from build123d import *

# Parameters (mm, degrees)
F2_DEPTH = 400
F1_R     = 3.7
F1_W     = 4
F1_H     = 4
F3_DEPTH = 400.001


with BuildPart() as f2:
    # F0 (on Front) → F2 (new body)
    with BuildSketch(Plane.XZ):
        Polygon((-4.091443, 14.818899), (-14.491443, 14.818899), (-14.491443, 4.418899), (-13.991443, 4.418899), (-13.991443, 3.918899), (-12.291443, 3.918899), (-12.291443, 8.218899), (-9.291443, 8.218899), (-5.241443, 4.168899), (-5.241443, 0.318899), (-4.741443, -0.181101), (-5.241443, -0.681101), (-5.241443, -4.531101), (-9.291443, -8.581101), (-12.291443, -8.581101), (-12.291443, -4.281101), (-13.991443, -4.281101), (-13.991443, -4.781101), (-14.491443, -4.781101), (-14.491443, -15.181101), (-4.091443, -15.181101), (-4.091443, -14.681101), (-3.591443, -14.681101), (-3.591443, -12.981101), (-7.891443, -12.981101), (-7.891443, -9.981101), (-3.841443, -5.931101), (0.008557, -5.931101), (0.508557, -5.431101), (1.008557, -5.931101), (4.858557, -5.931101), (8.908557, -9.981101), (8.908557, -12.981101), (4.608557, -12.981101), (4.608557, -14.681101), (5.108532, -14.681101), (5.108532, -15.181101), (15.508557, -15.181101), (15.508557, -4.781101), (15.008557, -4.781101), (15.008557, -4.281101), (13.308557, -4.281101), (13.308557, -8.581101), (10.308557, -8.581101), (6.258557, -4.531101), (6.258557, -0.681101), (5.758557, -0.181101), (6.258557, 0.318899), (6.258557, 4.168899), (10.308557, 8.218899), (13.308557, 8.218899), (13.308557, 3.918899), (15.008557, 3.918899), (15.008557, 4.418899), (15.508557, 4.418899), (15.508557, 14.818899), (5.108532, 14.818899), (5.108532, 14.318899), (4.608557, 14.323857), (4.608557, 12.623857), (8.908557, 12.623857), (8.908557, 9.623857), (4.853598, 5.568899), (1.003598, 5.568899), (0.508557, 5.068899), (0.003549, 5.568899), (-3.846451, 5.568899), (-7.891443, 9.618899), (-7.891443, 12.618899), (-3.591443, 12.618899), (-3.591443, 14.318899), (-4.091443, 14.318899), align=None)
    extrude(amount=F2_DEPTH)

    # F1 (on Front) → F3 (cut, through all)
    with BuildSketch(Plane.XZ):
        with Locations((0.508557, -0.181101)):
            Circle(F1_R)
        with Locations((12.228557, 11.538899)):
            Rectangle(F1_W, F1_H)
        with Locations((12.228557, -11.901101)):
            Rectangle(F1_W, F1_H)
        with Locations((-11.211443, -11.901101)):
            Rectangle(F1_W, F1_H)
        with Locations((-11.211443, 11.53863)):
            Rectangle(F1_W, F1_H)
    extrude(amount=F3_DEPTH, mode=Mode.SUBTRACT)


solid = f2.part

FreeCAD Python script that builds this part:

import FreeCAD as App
import Part
import Sketcher
from FreeCAD import Vector

doc = App.newDocument("Part")
params = doc.addObject("Spreadsheet::Sheet", "Params")
for row, (alias, value) in enumerate([
    ("sketch1_width", "3 mm"),
    ("sketch1_width2", "10.4 mm"),
    ("sketch1_width3", "0.5 mm"),
    ("sketch1_width4", "1.7 mm"),
    ("sketch1_width5", "4.3 mm"),
    ("pad1_length", "400 mm"),
    ("sketch2_diameter", "7.4 mm"),
    ("sketch2_width", "4 mm"),
], start=1):
    params.set(f"A{row}", alias)
    params.set(f"B{row}", "=" + value)
    params.setAlias(f"B{row}", alias)

body = doc.addObject("PartDesign::Body", "Body")

sketch1 = body.newObject("Sketcher::SketchObject", "Sketch")
sketch1.AttachmentSupport = (doc.getObject("XZ_Plane"), [""])
sketch1.MapMode = "FlatFace"
sketch1.addGeometry([
    Part.LineSegment(Vector(-4.09, 14.82, 0), Vector(-14.49, 14.82, 0)),
    Part.LineSegment(Vector(-14.49, 14.82, 0), Vector(-14.49, 4.42, 0)),
    Part.LineSegment(Vector(-14.49, 4.42, 0), Vector(-13.99, 4.42, 0)),
    Part.LineSegment(Vector(-13.99, 4.42, 0), Vector(-13.99, 3.92, 0)),
    Part.LineSegment(Vector(-13.99, 3.92, 0), Vector(-12.29, 3.92, 0)),
    Part.LineSegment(Vector(-12.29, 3.92, 0), Vector(-12.29, 8.22, 0)),
    Part.LineSegment(Vector(-12.29, 8.22, 0), Vector(-9.29, 8.22, 0)),
    Part.LineSegment(Vector(-9.29, 8.22, 0), Vector(-5.24, 4.17, 0)),
    Part.LineSegment(Vector(-5.24, 4.17, 0), Vector(-5.24, 0.32, 0)),
    Part.LineSegment(Vector(-5.24, 0.32, 0), Vector(-4.74, -0.18, 0)),
    Part.LineSegment(Vector(-4.74, -0.18, 0), Vector(-5.24, -0.68, 0)),
    Part.LineSegment(Vector(-5.24, -0.68, 0), Vector(-5.24, -4.53, 0)),
    Part.LineSegment(Vector(-5.24, -4.53, 0), Vector(-9.29, -8.58, 0)),
    Part.LineSegment(Vector(-9.29, -8.58, 0), Vector(-12.29, -8.58, 0)),
    Part.LineSegment(Vector(-12.29, -8.58, 0), Vector(-12.29, -4.28, 0)),
    Part.LineSegment(Vector(-12.29, -4.28, 0), Vector(-13.99, -4.28, 0)),
    Part.LineSegment(Vector(-13.99, -4.28, 0), Vector(-13.99, -4.78, 0)),
    Part.LineSegment(Vector(-13.99, -4.78, 0), Vector(-14.49, -4.78, 0)),
    Part.LineSegment(Vector(-14.49, -4.78, 0), Vector(-14.49, -15.18, 0)),
    Part.LineSegment(Vector(-14.49, -15.18, 0), Vector(-4.09, -15.18, 0)),
    Part.LineSegment(Vector(-4.09, -15.18, 0), Vector(-4.09, -14.68, 0)),
    Part.LineSegment(Vector(-4.09, -14.68, 0), Vector(-3.59, -14.68, 0)),
    Part.LineSegment(Vector(-3.59, -14.68, 0), Vector(-3.59, -12.98, 0)),
    Part.LineSegment(Vector(-3.59, -12.98, 0), Vector(-7.89, -12.98, 0)),
    Part.LineSegment(Vector(-7.89, -12.98, 0), Vector(-7.89, -9.98, 0)),
    Part.LineSegment(Vector(-7.89, -9.98, 0), Vector(-3.84, -5.93, 0)),
    Part.LineSegment(Vector(-3.84, -5.93, 0), Vector(0.01, -5.93, 0)),
    Part.LineSegment(Vector(0.01, -5.93, 0), Vector(0.51, -5.43, 0)),
    Part.LineSegment(Vector(0.51, -5.43, 0), Vector(1.01, -5.93, 0)),
    Part.LineSegment(Vector(1.01, -5.93, 0), Vector(4.86, -5.93, 0)),
    Part.LineSegment(Vector(4.86, -5.93, 0), Vector(8.91, -9.98, 0)),
    Part.LineSegment(Vector(8.91, -9.98, 0), Vector(8.91, -12.98, 0)),
    Part.LineSegment(Vector(8.91, -12.98, 0), Vector(4.61, -12.98, 0)),
    Part.LineSegment(Vector(4.61, -12.98, 0), Vector(4.61, -14.68, 0)),
    Part.LineSegment(Vector(4.61, -14.68, 0), Vector(5.11, -14.68, 0)),
    Part.LineSegment(Vector(5.11, -14.68, 0), Vector(5.11, -15.18, 0)),
    Part.LineSegment(Vector(5.11, -15.18, 0), Vector(15.51, -15.18, 0)),
    Part.LineSegment(Vector(15.51, -15.18, 0), Vector(15.51, -4.78, 0)),
    Part.LineSegment(Vector(15.51, -4.78, 0), Vector(15.01, -4.78, 0)),
    Part.LineSegment(Vector(15.01, -4.78, 0), Vector(15.01, -4.28, 0)),
    Part.LineSegment(Vector(15.01, -4.28, 0), Vector(13.31, -4.28, 0)),
    Part.LineSegment(Vector(13.31, -4.28, 0), Vector(13.31, -8.58, 0)),
    Part.LineSegment(Vector(13.31, -8.58, 0), Vector(10.31, -8.58, 0)),
    Part.LineSegment(Vector(10.31, -8.58, 0), Vector(6.26, -4.53, 0)),
    Part.LineSegment(Vector(6.26, -4.53, 0), Vector(6.26, -0.68, 0)),
    Part.LineSegment(Vector(6.26, -0.68, 0), Vector(5.76, -0.18, 0)),
    Part.LineSegment(Vector(5.76, -0.18, 0), Vector(6.26, 0.32, 0)),
    Part.LineSegment(Vector(6.26, 0.32, 0), Vector(6.26, 4.17, 0)),
    Part.LineSegment(Vector(6.26, 4.17, 0), Vector(10.31, 8.22, 0)),
    Part.LineSegment(Vector(10.31, 8.22, 0), Vector(13.31, 8.22, 0)),
    Part.LineSegment(Vector(13.31, 8.22, 0), Vector(13.31, 3.92, 0)),
    Part.LineSegment(Vector(13.31, 3.92, 0), Vector(15.01, 3.92, 0)),
    Part.LineSegment(Vector(15.01, 3.92, 0), Vector(15.01, 4.42, 0)),
    Part.LineSegment(Vector(15.01, 4.42, 0), Vector(15.51, 4.42, 0)),
    Part.LineSegment(Vector(15.51, 4.42, 0), Vector(15.51, 14.82, 0)),
    Part.LineSegment(Vector(15.51, 14.82, 0), Vector(5.11, 14.82, 0)),
    Part.LineSegment(Vector(5.11, 14.82, 0), Vector(5.11, 14.32, 0)),
    Part.LineSegment(Vector(5.11, 14.32, 0), Vector(4.61, 14.32, 0)),
    Part.LineSegment(Vector(4.61, 14.32, 0), Vector(4.61, 12.62, 0)),
    Part.LineSegment(Vector(4.61, 12.62, 0), Vector(8.91, 12.62, 0)),
    Part.LineSegment(Vector(8.91, 12.62, 0), Vector(8.91, 9.62, 0)),
    Part.LineSegment(Vector(8.91, 9.62, 0), Vector(4.85, 5.57, 0)),
    Part.LineSegment(Vector(4.85, 5.57, 0), Vector(1, 5.57, 0)),
    Part.LineSegment(Vector(1, 5.57, 0), Vector(0.51, 5.07, 0)),
    Part.LineSegment(Vector(0.51, 5.07, 0), Vector(0, 5.57, 0)),
    Part.LineSegment(Vector(0, 5.57, 0), Vector(-3.85, 5.57, 0)),
    Part.LineSegment(Vector(-3.85, 5.57, 0), Vector(-7.89, 9.62, 0)),
    Part.LineSegment(Vector(-7.89, 9.62, 0), Vector(-7.89, 12.62, 0)),
    Part.LineSegment(Vector(-7.89, 12.62, 0), Vector(-3.59, 12.62, 0)),
    Part.LineSegment(Vector(-3.59, 12.62, 0), Vector(-3.59, 14.32, 0)),
    Part.LineSegment(Vector(-3.59, 14.32, 0), Vector(-4.09, 14.32, 0)),
    Part.LineSegment(Vector(-4.09, 14.32, 0), Vector(-4.09, 14.82, 0)),
], False)
sketch1.addConstraint([
    Sketcher.Constraint("Coincident", 0, 2, 1, 1),
    Sketcher.Constraint("Coincident", 1, 2, 2, 1),
    Sketcher.Constraint("Coincident", 2, 2, 3, 1),
    Sketcher.Constraint("Coincident", 3, 2, 4, 1),
    Sketcher.Constraint("Coincident", 4, 2, 5, 1),
    Sketcher.Constraint("Coincident", 5, 2, 6, 1),
    Sketcher.Constraint("Coincident", 6, 2, 7, 1),
    Sketcher.Constraint("Coincident", 7, 2, 8, 1),
    Sketcher.Constraint("Coincident", 8, 2, 9, 1),
    Sketcher.Constraint("Coincident", 9, 2, 10, 1),
    Sketcher.Constraint("Coincident", 10, 2, 11, 1),
    Sketcher.Constraint("Coincident", 11, 2, 12, 1),
    Sketcher.Constraint("Coincident", 12, 2, 13, 1),
    Sketcher.Constraint("Coincident", 13, 2, 14, 1),
    Sketcher.Constraint("Coincident", 14, 2, 15, 1),
    Sketcher.Constraint("Coincident", 15, 2, 16, 1),
    Sketcher.Constraint("Coincident", 16, 2, 17, 1),
    Sketcher.Constraint("Coincident", 17, 2, 18, 1),
    Sketcher.Constraint("Coincident", 18, 2, 19, 1),
    Sketcher.Constraint("Coincident", 19, 2, 20, 1),
    Sketcher.Constraint("Coincident", 20, 2, 21, 1),
    Sketcher.Constraint("Coincident", 21, 2, 22, 1),
    Sketcher.Constraint("Coincident", 22, 2, 23, 1),
    Sketcher.Constraint("Coincident", 23, 2, 24, 1),
    Sketcher.Constraint("Coincident", 24, 2, 25, 1),
    Sketcher.Constraint("Coincident", 25, 2, 26, 1),
    Sketcher.Constraint("Coincident", 26, 2, 27, 1),
    Sketcher.Constraint("Coincident", 27, 2, 28, 1),
    Sketcher.Constraint("Coincident", 28, 2, 29, 1),
    Sketcher.Constraint("Coincident", 29, 2, 30, 1),
    Sketcher.Constraint("Coincident", 30, 2, 31, 1),
    Sketcher.Constraint("Coincident", 31, 2, 32, 1),
    Sketcher.Constraint("Coincident", 32, 2, 33, 1),
    Sketcher.Constraint("Coincident", 33, 2, 34, 1),
    Sketcher.Constraint("Coincident", 34, 2, 35, 1),
    Sketcher.Constraint("Coincident", 35, 2, 36, 1),
    Sketcher.Constraint("Coincident", 36, 2, 37, 1),
    Sketcher.Constraint("Coincident", 37, 2, 38, 1),
    Sketcher.Constraint("Coincident", 38, 2, 39, 1),
    Sketcher.Constraint("Coincident", 39, 2, 40, 1),
    Sketcher.Constraint("Coincident", 40, 2, 41, 1),
    Sketcher.Constraint("Coincident", 41, 2, 42, 1),
    Sketcher.Constraint("Coincident", 42, 2, 43, 1),
    Sketcher.Constraint("Coincident", 43, 2, 44, 1),
    Sketcher.Constraint("Coincident", 44, 2, 45, 1),
    Sketcher.Constraint("Coincident", 45, 2, 46, 1),
    Sketcher.Constraint("Coincident", 46, 2, 47, 1),
    Sketcher.Constraint("Coincident", 47, 2, 48, 1),
    Sketcher.Constraint("Coincident", 48, 2, 49, 1),
    Sketcher.Constraint("Coincident", 49, 2, 50, 1),
    Sketcher.Constraint("Coincident", 50, 2, 51, 1),
    Sketcher.Constraint("Coincident", 51, 2, 52, 1),
    Sketcher.Constraint("Coincident", 52, 2, 53, 1),
    Sketcher.Constraint("Coincident", 53, 2, 54, 1),
    Sketcher.Constraint("Coincident", 54, 2, 55, 1),
    Sketcher.Constraint("Coincident", 55, 2, 56, 1),
    Sketcher.Constraint("Coincident", 56, 2, 57, 1),
    Sketcher.Constraint("Coincident", 57, 2, 58, 1),
    Sketcher.Constraint("Coincident", 58, 2, 59, 1),
    Sketcher.Constraint("Coincident", 59, 2, 60, 1),
    Sketcher.Constraint("Coincident", 60, 2, 61, 1),
    Sketcher.Constraint("Coincident", 61, 2, 62, 1),
    Sketcher.Constraint("Coincident", 62, 2, 63, 1),
    Sketcher.Constraint("Coincident", 63, 2, 64, 1),
    Sketcher.Constraint("Coincident", 64, 2, 65, 1),
    Sketcher.Constraint("Coincident", 65, 2, 66, 1),
    Sketcher.Constraint("Coincident", 66, 2, 67, 1),
    Sketcher.Constraint("Coincident", 67, 2, 68, 1),
    Sketcher.Constraint("Coincident", 68, 2, 69, 1),
    Sketcher.Constraint("Coincident", 69, 2, 70, 1),
    Sketcher.Constraint("Coincident", 70, 2, 71, 1),
    Sketcher.Constraint("Coincident", 71, 2, 0, 1),
    Sketcher.Constraint("Horizontal", 0),
    Sketcher.Constraint("Vertical", 1),
    Sketcher.Constraint("Horizontal", 2),
    Sketcher.Constraint("Vertical", 3),
    Sketcher.Constraint("Horizontal", 4),
    Sketcher.Constraint("Vertical", 5),
    Sketcher.Constraint("Horizontal", 6),
    Sketcher.Constraint("Vertical", 8),
    Sketcher.Constraint("Vertical", 11),
    Sketcher.Constraint("Horizontal", 13),
    Sketcher.Constraint("Vertical", 14),
    Sketcher.Constraint("Horizontal", 15),
    Sketcher.Constraint("Vertical", 16),
    Sketcher.Constraint("Horizontal", 17),
    Sketcher.Constraint("Vertical", 18),
    Sketcher.Constraint("Horizontal", 19),
    Sketcher.Constraint("Vertical", 20),
    Sketcher.Constraint("Horizontal", 21),
    Sketcher.Constraint("Vertical", 22),
    Sketcher.Constraint("Horizontal", 23),
    Sketcher.Constraint("Vertical", 24),
    Sketcher.Constraint("Horizontal", 26),
    Sketcher.Constraint("Horizontal", 29),
    Sketcher.Constraint("Vertical", 31),
    Sketcher.Constraint("Horizontal", 32),
    Sketcher.Constraint("Vertical", 33),
    Sketcher.Constraint("Horizontal", 34),
    Sketcher.Constraint("Vertical", 35),
    Sketcher.Constraint("Horizontal", 36),
    Sketcher.Constraint("Vertical", 37),
    Sketcher.Constraint("Horizontal", 38),
    Sketcher.Constraint("Vertical", 39),
    Sketcher.Constraint("Horizontal", 40),
    Sketcher.Constraint("Vertical", 41),
    Sketcher.Constraint("Horizontal", 42),
    Sketcher.Constraint("Vertical", 44),
    Sketcher.Constraint("Vertical", 47),
    Sketcher.Constraint("Horizontal", 49),
    Sketcher.Constraint("Vertical", 50),
    Sketcher.Constraint("Horizontal", 51),
    Sketcher.Constraint("Vertical", 52),
    Sketcher.Constraint("Horizontal", 53),
    Sketcher.Constraint("Vertical", 54),
    Sketcher.Constraint("Horizontal", 55),
    Sketcher.Constraint("Vertical", 56),
    Sketcher.Constraint("Vertical", 58),
    Sketcher.Constraint("Horizontal", 59),
    Sketcher.Constraint("Vertical", 60),
    Sketcher.Constraint("Horizontal", 62),
    Sketcher.Constraint("Horizontal", 65),
    Sketcher.Constraint("Vertical", 67),
    Sketcher.Constraint("Horizontal", 68),
    Sketcher.Constraint("Vertical", 69),
    Sketcher.Constraint("Horizontal", 70),
    Sketcher.Constraint("Vertical", 71),
    Sketcher.Constraint("Parallel", 7, 9),
    Sketcher.Constraint("Perpendicular", 9, 10),
    Sketcher.Constraint("Parallel", 10, 12),
    Sketcher.Constraint("Parallel", 12, 25),
    Sketcher.Constraint("Parallel", 25, 27),
    Sketcher.Constraint("Perpendicular", 27, 28),
    Sketcher.Constraint("Parallel", 28, 30),
    Sketcher.Constraint("Parallel", 30, 43),
    Sketcher.Constraint("Parallel", 43, 45),
    Sketcher.Constraint("Perpendicular", 45, 46),
    Sketcher.Constraint("Parallel", 46, 48),
    Sketcher.Constraint("Parallel", 48, 61),
    Sketcher.Constraint("Perpendicular", 63, 64),
    Sketcher.Constraint("Horizontal", 26, 2, 28, 2),
    Sketcher.Constraint("Horizontal", 24, 2, 30, 2),
    Sketcher.Constraint("Horizontal", 23, 2, 31, 2),
    Sketcher.Constraint("Horizontal", 21, 2, 33, 2),
    Sketcher.Constraint("Horizontal", 19, 2, 35, 2),
    Sketcher.Constraint("Horizontal", 17, 2, 37, 2),
    Sketcher.Constraint("Horizontal", 15, 2, 39, 2),
    Sketcher.Constraint("Horizontal", 13, 2, 41, 2),
    Sketcher.Constraint("Horizontal", 11, 2, 43, 2),
    Sketcher.Constraint("Horizontal", 10, 2, 44, 2),
    Sketcher.Constraint("Horizontal", 9, 2, 45, 2),
    Sketcher.Constraint("Horizontal", 8, 2, 46, 2),
    Sketcher.Constraint("Horizontal", 7, 2, 47, 2),
    Sketcher.Constraint("Horizontal", 6, 2, 48, 2),
    Sketcher.Constraint("Horizontal", 4, 2, 50, 2),
    Sketcher.Constraint("Horizontal", 2, 2, 52, 2),
    Sketcher.Constraint("Horizontal", 0, 2, 54, 2),
    Sketcher.Constraint("Horizontal", 62, 2, 64, 2),
    Sketcher.Constraint("Horizontal", 56, 2, 69, 2),
    Sketcher.Constraint("Vertical", 8, 2, 10, 2),
    Sketcher.Constraint("Vertical", 6, 2, 12, 2),
    Sketcher.Constraint("Vertical", 5, 2, 13, 2),
    Sketcher.Constraint("Vertical", 3, 2, 15, 2),
    Sketcher.Constraint("Vertical", 1, 2, 17, 2),
    Sketcher.Constraint("Vertical", 44, 2, 46, 2),
    Sketcher.Constraint("Vertical", 41, 2, 49, 2),
    Sketcher.Constraint("Vertical", 39, 2, 51, 2),
    Sketcher.Constraint("Vertical", 37, 2, 53, 2),
    Sketcher.Constraint("Vertical", 35, 2, 55, 2),
    Sketcher.Constraint("Vertical", 33, 2, 57, 2),
    Sketcher.Constraint("Vertical", 31, 2, 59, 2),
    Sketcher.Constraint("Vertical", 27, 2, 63, 2),
    Sketcher.Constraint("Vertical", 24, 2, 66, 2),
    Sketcher.Constraint("Vertical", 22, 2, 68, 2),
    Sketcher.Constraint("Vertical", 20, 2, 70, 2),
    Sketcher.Constraint("Equal", 17, 21),
    Sketcher.Constraint("Equal", 26, 29),
    Sketcher.Constraint("Equal", 23, 32),
    Sketcher.Constraint("Equal", 21, 38),
    Sketcher.Constraint("Equal", 15, 40),
    Sketcher.Constraint("Equal", 13, 42),
    Sketcher.Constraint("Equal", 29, 62),
    Sketcher.Constraint("Equal", 62, 65),
    Sketcher.Constraint("Equal", 19, 1),
    Sketcher.Constraint("Equal", 70, 3),
    Sketcher.Constraint("Equal", 68, 5),
    Sketcher.Constraint("Equal", 65, 8),
    Sketcher.Constraint("Equal", 8, 11),
    Sketcher.Constraint("Equal", 5, 14),
    Sketcher.Constraint("Equal", 3, 16),
    Sketcher.Constraint("Equal", 1, 18),
    Sketcher.Constraint("Equal", 16, 20),
    Sketcher.Constraint("Equal", 51, 22),
    Sketcher.Constraint("Equal", 49, 24),
    Sketcher.Constraint("Equal", 52, 56),
    Sketcher.Constraint("Equal", 33, 58),
    Sketcher.Constraint("Equal", 31, 60),
    Sketcher.Constraint("Equal", 60, 67),
    Sketcher.Constraint("Equal", 58, 69),
    Sketcher.Constraint("Equal", 12, 25),
    Sketcher.Constraint("Equal", 10, 27),
    Sketcher.Constraint("DistanceX", 6, 1, 6, 2, 3.0),
    Sketcher.Constraint("DistanceX", 0, 2, 0, 1, 10.4),
    Sketcher.Constraint("DistanceX", 2, 1, 2, 2, 0.5),
    Sketcher.Constraint("DistanceX", 4, 1, 4, 2, 1.7),
    Sketcher.Constraint("DistanceX", 23, 2, 23, 1, 4.3),
    Sketcher.Constraint("Distance", 57, 0.5),
    Sketcher.Constraint("DistanceX", 26, 1, 26, 2, 3.85),
    Sketcher.Constraint("DistanceY", -1, 1, 0, 2, 14.818899),
    Sketcher.Constraint("DistanceY", -1, 1, 7, 2, 4.168899),
    Sketcher.Constraint("DistanceY", 9, 2, -1, 1, 0.181101),
    Sketcher.Constraint("DistanceY", -1, 1, 61, 2, 5.568899),
    Sketcher.Constraint("DistanceY", -1, 1, 63, 2, 5.068899),
    Sketcher.Constraint("Distance", 63, 0.703609),
    Sketcher.Constraint("DistanceX", 36, 1, 36, 2, 10.400025),
    Sketcher.Constraint("DistanceX", -1, 1, 64, 2, 0.003549),
])
sketch1.setExpression("Constraints[201]", "Params.sketch1_width")
sketch1.setExpression("Constraints[202]", "Params.sketch1_width2")
sketch1.setExpression("Constraints[203]", "Params.sketch1_width3")
sketch1.setExpression("Constraints[204]", "Params.sketch1_width4")
sketch1.setExpression("Constraints[205]", "Params.sketch1_width5")
pad1 = body.newObject("PartDesign::Pad", "Pad")
pad1.Profile = sketch1
pad1.setExpression("Length", "Params.pad1_length")

sketch2 = body.newObject("Sketcher::SketchObject", "Sketch001")
sketch2.AttachmentSupport = (doc.getObject("XZ_Plane"), [""])
sketch2.MapMode = "FlatFace"
sketch2.addGeometry([
    Part.Circle(Vector(0.5, -0.2, 0), Vector(0, 0, 1), 3.7),
    Part.LineSegment(Vector(10.2, 13.5, 0), Vector(10.2, 9.5, 0)),
    Part.LineSegment(Vector(10.2, 9.5, 0), Vector(14.2, 9.5, 0)),
    Part.LineSegment(Vector(14.2, 9.5, 0), Vector(14.2, 13.5, 0)),
    Part.LineSegment(Vector(14.2, 13.5, 0), Vector(10.2, 13.5, 0)),
    Part.LineSegment(Vector(10.2, -9.9, 0), Vector(10.2, -13.9, 0)),
    Part.LineSegment(Vector(10.2, -13.9, 0), Vector(14.2, -13.9, 0)),
    Part.LineSegment(Vector(14.2, -13.9, 0), Vector(14.2, -9.9, 0)),
    Part.LineSegment(Vector(14.2, -9.9, 0), Vector(10.2, -9.9, 0)),
    Part.LineSegment(Vector(-13.2, -9.9, 0), Vector(-13.2, -13.9, 0)),
    Part.LineSegment(Vector(-13.2, -13.9, 0), Vector(-9.2, -13.9, 0)),
    Part.LineSegment(Vector(-9.2, -13.9, 0), Vector(-9.2, -9.9, 0)),
    Part.LineSegment(Vector(-9.2, -9.9, 0), Vector(-13.2, -9.9, 0)),
    Part.LineSegment(Vector(-13.2, 13.5, 0), Vector(-13.2, 9.5, 0)),
    Part.LineSegment(Vector(-13.2, 9.5, 0), Vector(-9.2, 9.5, 0)),
    Part.LineSegment(Vector(-9.2, 9.5, 0), Vector(-9.2, 13.5, 0)),
    Part.LineSegment(Vector(-9.2, 13.5, 0), Vector(-13.2, 13.5, 0)),
], False)
sketch2.addConstraint([
    Sketcher.Constraint("Coincident", 1, 2, 2, 1),
    Sketcher.Constraint("Coincident", 2, 2, 3, 1),
    Sketcher.Constraint("Coincident", 3, 2, 4, 1),
    Sketcher.Constraint("Coincident", 4, 2, 1, 1),
    Sketcher.Constraint("Coincident", 5, 2, 6, 1),
    Sketcher.Constraint("Coincident", 6, 2, 7, 1),
    Sketcher.Constraint("Coincident", 7, 2, 8, 1),
    Sketcher.Constraint("Coincident", 8, 2, 5, 1),
    Sketcher.Constraint("Coincident", 9, 2, 10, 1),
    Sketcher.Constraint("Coincident", 10, 2, 11, 1),
    Sketcher.Constraint("Coincident", 11, 2, 12, 1),
    Sketcher.Constraint("Coincident", 12, 2, 9, 1),
    Sketcher.Constraint("Coincident", 13, 2, 14, 1),
    Sketcher.Constraint("Coincident", 14, 2, 15, 1),
    Sketcher.Constraint("Coincident", 15, 2, 16, 1),
    Sketcher.Constraint("Coincident", 16, 2, 13, 1),
    Sketcher.Constraint("Vertical", 1),
    Sketcher.Constraint("Horizontal", 2),
    Sketcher.Constraint("Vertical", 3),
    Sketcher.Constraint("Horizontal", 4),
    Sketcher.Constraint("Vertical", 5),
    Sketcher.Constraint("Horizontal", 6),
    Sketcher.Constraint("Vertical", 7),
    Sketcher.Constraint("Horizontal", 8),
    Sketcher.Constraint("Vertical", 9),
    Sketcher.Constraint("Horizontal", 10),
    Sketcher.Constraint("Vertical", 11),
    Sketcher.Constraint("Horizontal", 12),
    Sketcher.Constraint("Vertical", 13),
    Sketcher.Constraint("Horizontal", 14),
    Sketcher.Constraint("Vertical", 15),
    Sketcher.Constraint("Horizontal", 16),
    Sketcher.Constraint("Horizontal", 6, 2, 9, 2),
    Sketcher.Constraint("Horizontal", 8, 2, 11, 2),
    Sketcher.Constraint("Vertical", 4, 2, 5, 2),
    Sketcher.Constraint("Vertical", 3, 2, 6, 2),
    Sketcher.Constraint("Vertical", 12, 2, 13, 2),
    Sketcher.Constraint("Vertical", 11, 2, 14, 2),
    Sketcher.Constraint("Equal", 8, 10),
    Sketcher.Constraint("Equal", 16, 1),
    Sketcher.Constraint("Equal", 3, 5),
    Sketcher.Constraint("Equal", 11, 13),
    Sketcher.Constraint("Diameter", 0, 7.4),
    Sketcher.Constraint("DistanceX", 2, 1, 2, 2, 4.0),
    Sketcher.Constraint("DistanceX", 0, 3, 1, 2, 9.72),
    Sketcher.Constraint("DistanceY", 0, 3, 1, 2, 9.72),
    Sketcher.Constraint("DistanceY", 5, 2, 0, 3, 13.72),
    Sketcher.Constraint("DistanceX", 9, 2, 0, 3, 13.72),
    Sketcher.Constraint("DistanceY", 0, 3, -1, 1, 0.181101),
    Sketcher.Constraint("DistanceY", -1, 1, 13, 2, 9.53863),
    Sketcher.Constraint("DistanceX", -1, 1, 0, 3, 0.508557),
])
sketch2.setExpression("Constraints[42]", "Params.sketch2_diameter")
sketch2.setExpression("Constraints[43]", "Params.sketch2_width")
pocket1 = body.newObject("PartDesign::Pocket", "Pocket")
pocket1.Profile = sketch2
pocket1.Type = "ThroughAll"
pocket1.Reversed = True

doc.recompute()
